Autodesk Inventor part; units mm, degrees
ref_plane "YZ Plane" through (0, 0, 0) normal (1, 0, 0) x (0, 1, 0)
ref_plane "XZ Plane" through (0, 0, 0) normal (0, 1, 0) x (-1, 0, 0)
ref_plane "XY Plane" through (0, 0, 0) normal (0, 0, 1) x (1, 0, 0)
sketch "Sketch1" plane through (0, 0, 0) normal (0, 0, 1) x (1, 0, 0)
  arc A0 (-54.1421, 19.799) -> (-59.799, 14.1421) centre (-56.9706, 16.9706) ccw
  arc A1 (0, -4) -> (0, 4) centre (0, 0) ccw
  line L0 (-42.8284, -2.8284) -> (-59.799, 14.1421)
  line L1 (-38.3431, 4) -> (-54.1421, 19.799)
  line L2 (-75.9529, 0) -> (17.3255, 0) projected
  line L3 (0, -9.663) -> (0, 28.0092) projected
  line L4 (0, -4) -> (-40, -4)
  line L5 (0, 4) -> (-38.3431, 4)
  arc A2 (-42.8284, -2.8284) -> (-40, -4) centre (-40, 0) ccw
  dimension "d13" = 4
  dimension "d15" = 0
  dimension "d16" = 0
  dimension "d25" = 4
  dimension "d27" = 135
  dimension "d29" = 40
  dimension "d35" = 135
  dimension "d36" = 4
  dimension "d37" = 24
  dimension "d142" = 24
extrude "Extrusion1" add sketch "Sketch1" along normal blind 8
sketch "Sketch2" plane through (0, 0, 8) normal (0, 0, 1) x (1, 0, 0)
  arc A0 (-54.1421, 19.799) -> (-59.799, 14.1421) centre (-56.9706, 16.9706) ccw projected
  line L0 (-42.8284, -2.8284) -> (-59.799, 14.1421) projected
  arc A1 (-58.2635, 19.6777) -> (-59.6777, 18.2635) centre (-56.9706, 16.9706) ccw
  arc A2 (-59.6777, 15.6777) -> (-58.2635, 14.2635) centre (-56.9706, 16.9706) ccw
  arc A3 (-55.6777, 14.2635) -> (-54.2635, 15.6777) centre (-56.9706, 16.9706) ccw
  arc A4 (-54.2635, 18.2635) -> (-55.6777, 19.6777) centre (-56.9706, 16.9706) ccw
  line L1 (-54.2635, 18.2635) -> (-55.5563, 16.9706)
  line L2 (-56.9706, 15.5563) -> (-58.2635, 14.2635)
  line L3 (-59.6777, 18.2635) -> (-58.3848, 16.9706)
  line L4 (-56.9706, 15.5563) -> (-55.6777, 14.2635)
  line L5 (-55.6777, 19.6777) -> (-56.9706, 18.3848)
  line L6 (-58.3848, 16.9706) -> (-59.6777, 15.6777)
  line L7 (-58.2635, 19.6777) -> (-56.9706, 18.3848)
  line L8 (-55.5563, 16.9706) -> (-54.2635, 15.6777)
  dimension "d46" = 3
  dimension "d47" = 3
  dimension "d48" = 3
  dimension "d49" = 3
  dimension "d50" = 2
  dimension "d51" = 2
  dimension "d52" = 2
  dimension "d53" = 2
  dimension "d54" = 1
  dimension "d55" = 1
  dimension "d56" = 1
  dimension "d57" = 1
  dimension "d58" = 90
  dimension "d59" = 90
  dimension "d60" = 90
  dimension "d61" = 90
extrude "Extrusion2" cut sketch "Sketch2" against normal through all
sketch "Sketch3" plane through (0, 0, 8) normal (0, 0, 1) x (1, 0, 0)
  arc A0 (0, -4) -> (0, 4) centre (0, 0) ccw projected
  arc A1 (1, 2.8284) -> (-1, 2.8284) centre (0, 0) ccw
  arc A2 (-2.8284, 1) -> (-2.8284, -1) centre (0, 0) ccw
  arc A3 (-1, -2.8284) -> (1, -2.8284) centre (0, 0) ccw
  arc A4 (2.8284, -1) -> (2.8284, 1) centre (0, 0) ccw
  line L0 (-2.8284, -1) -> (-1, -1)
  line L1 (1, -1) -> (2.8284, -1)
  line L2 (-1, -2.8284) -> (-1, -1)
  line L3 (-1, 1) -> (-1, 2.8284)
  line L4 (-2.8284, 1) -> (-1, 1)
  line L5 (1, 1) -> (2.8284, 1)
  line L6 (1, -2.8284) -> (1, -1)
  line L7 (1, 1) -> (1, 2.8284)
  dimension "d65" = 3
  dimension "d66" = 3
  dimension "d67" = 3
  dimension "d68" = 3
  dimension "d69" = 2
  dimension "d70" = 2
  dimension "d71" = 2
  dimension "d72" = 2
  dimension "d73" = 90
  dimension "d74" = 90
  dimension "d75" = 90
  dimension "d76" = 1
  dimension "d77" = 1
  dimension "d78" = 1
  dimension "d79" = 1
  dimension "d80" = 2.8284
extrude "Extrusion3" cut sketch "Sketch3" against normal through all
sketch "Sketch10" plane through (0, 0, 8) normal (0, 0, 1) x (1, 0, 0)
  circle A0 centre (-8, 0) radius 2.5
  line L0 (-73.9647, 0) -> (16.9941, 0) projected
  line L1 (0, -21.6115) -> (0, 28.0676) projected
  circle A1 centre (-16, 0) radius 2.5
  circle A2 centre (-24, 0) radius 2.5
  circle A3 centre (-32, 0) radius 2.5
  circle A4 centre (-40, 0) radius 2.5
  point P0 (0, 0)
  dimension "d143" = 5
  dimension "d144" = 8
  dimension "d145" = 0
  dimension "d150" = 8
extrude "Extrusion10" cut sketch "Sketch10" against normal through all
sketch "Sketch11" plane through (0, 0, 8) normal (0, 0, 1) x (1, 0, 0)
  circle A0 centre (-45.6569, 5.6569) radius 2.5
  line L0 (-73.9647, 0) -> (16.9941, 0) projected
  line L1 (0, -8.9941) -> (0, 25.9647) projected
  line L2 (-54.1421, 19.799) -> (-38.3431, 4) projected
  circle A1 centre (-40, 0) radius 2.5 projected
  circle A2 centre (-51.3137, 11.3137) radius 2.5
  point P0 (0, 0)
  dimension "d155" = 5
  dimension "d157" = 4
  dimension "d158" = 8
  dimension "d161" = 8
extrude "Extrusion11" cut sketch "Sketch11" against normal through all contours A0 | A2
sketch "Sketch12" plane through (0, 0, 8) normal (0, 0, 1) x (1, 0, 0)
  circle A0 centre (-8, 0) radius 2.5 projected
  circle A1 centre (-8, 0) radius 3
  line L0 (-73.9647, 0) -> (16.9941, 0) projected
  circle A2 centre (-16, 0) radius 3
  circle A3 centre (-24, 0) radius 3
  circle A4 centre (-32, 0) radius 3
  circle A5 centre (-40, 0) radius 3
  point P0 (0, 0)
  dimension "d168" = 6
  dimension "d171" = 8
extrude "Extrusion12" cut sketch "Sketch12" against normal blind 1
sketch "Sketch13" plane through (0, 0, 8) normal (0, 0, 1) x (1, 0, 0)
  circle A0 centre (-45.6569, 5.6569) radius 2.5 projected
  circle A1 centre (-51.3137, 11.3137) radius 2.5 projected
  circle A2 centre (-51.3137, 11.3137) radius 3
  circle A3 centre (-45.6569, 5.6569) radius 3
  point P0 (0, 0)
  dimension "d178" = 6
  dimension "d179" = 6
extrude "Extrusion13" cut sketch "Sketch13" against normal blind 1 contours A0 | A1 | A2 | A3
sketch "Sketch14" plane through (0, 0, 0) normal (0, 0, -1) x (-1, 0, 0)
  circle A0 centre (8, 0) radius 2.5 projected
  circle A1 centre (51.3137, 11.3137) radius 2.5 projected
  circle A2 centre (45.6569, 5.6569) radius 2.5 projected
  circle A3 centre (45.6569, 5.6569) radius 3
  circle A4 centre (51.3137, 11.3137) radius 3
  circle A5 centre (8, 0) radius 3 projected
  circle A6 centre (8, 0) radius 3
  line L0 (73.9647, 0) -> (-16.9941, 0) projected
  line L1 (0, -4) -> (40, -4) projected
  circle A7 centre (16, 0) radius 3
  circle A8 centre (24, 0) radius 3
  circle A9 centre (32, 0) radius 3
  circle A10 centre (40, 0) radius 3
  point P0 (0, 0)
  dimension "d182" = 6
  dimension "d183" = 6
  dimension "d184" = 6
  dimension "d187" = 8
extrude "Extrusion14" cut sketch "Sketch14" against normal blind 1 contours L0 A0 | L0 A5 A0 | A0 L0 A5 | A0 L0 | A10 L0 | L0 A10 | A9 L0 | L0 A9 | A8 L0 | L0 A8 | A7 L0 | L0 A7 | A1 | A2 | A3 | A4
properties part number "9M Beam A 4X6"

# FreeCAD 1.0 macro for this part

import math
import FreeCAD as App
import Part
import Sketcher

V = App.Vector
Q = App.Units.Quantity

doc = App.newDocument("Part")
body = doc.addObject("PartDesign::Body", "Body")

# Sketch on XY plane
sketch1 = body.newObject("Sketcher::SketchObject", "Sketch")
sketch1.AttachmentSupport = (doc.getObject("XY_Plane"), [""])
sketch1.MapMode = "FlatFace"
sketch1.addGeometry([
    Part.LineSegment(V(-38.3431, 4, 0), V(-54.1421, 19.799, 0)),  # 0
    Part.ArcOfCircle(Part.Circle(V(-56.9706, 16.9706, 0), V(0, 0, 1), 4.000032), math.radians(44.998987), math.radians(225.001013)),  # 1
    Part.LineSegment(V(-59.799, 14.1421, 0), V(-42.8284, -2.8284, 0)),  # 2
    Part.ArcOfCircle(Part.Circle(V(-40, 0, 0), V(0, 0, 1), 3.999962), math.radians(-135), math.radians(-90)),  # 3
    Part.LineSegment(V(-40, -4, 0), V(0, -4, 0)),  # 4
    Part.ArcOfCircle(Part.Circle(V(0, 0, 0), V(0, 0, 1), 4), math.radians(-90), math.radians(90)),  # 5
    Part.LineSegment(V(0, 4, 0), V(-38.3431, 4, 0)),  # 6
], False)
sketch1.addConstraint([
    Sketcher.Constraint("Tangent", 0, 2, 1, 1),
    Sketcher.Constraint("Tangent", 1, 2, 2, 1),
    Sketcher.Constraint("Tangent", 2, 2, 3, 1),
    Sketcher.Constraint("Tangent", 3, 2, 4, 1),
    Sketcher.Constraint("Tangent", 4, 2, 5, 1),
    Sketcher.Constraint("Tangent", 5, 2, 6, 1),
    Sketcher.Constraint("Coincident", 6, 2, 0, 1),
    Sketcher.Constraint("Horizontal", 4),
    Sketcher.Constraint("Horizontal", 6),
    Sketcher.Constraint("Coincident", 5, 3, -1, 1),
    Sketcher.Constraint("Equal", 1, 3),
    Sketcher.Constraint("Equal", 3, 5),
    Sketcher.Constraint("Parallel", 0, 2),
    Sketcher.Constraint("Radius", 1, 4.0),
    Sketcher.Constraint("DistanceX", 4, 1, 4, 2, 40.0),
    Sketcher.Constraint("Angle", 0, Q("135 deg")),
    Sketcher.Constraint("Distance", 2, 24.0),
])
pad1 = body.newObject("PartDesign::Pad", "Pad")
pad1.Profile = sketch1
pad1.Length = 8

# Sketch on XY plane
sketch2 = body.newObject("Sketcher::SketchObject", "Sketch001")
sketch2.AttachmentSupport = (doc.getObject("XY_Plane"), [""])
sketch2.MapMode = "FlatFace"
sketch2.AttachmentOffset = App.Placement(V(0, 0, 8), App.Rotation())
sketch2.addGeometry([
    Part.LineSegment(V(-56.9706, 18.3848, 0), V(-58.2635, 19.6777, 0)),  # 0
    Part.ArcOfCircle(Part.Circle(V(-56.9706, 16.9706, 0), V(0, 0, 1), 2.999997), math.radians(115.528952), math.radians(154.471048)),  # 1
    Part.LineSegment(V(-59.6777, 18.2635, 0), V(-58.3848, 16.9706, 0)),  # 2
    Part.LineSegment(V(-58.3848, 16.9706, 0), V(-59.6777, 15.6777, 0)),  # 3
    Part.ArcOfCircle(Part.Circle(V(-56.9706, 16.9706, 0), V(0, 0, 1), 2.999997), math.radians(-154.471048), math.radians(-115.528952)),  # 4
    Part.LineSegment(V(-58.2635, 14.2635, 0), V(-56.9706, 15.5563, 0)),  # 5
    Part.LineSegment(V(-56.9706, 15.5563, 0), V(-55.6777, 14.2635, 0)),  # 6
    Part.ArcOfCircle(Part.Circle(V(-56.9706, 16.9706, 0), V(0, 0, 1), 2.999997), math.radians(-64.471048), math.radians(-25.528952)),  # 7
    Part.LineSegment(V(-54.2635, 15.6777, 0), V(-55.5563, 16.9706, 0)),  # 8
    Part.LineSegment(V(-55.5563, 16.9706, 0), V(-54.2635, 18.2635, 0)),  # 9
    Part.ArcOfCircle(Part.Circle(V(-56.9706, 16.9706, 0), V(0, 0, 1), 2.999997), math.radians(25.528952), math.radians(64.471048)),  # 10
    Part.LineSegment(V(-55.6777, 19.6777, 0), V(-56.9706, 18.3848, 0)),  # 11
], False)
sketch2.addConstraint([
    Sketcher.Constraint("Coincident", 0, 2, 1, 1),
    Sketcher.Constraint("Coincident", 1, 2, 2, 1),
    Sketcher.Constraint("Coincident", 2, 2, 3, 1),
    Sketcher.Constraint("Coincident", 3, 2, 4, 1),
    Sketcher.Constraint("Coincident", 4, 2, 5, 1),
    Sketcher.Constraint("Coincident", 5, 2, 6, 1),
    Sketcher.Constraint("Coincident", 6, 2, 7, 1),
    Sketcher.Constraint("Coincident", 7, 2, 8, 1),
    Sketcher.Constraint("Coincident", 8, 2, 9, 1),
    Sketcher.Constraint("Coincident", 9, 2, 10, 1),
    Sketcher.Constraint("Coincident", 10, 2, 11, 1),
    Sketcher.Constraint("Coincident", 11, 2, 0, 1),
    Sketcher.Constraint("Coincident", 4, 3, 1, 3),
    Sketcher.Constraint("Coincident", 7, 3, 1, 3),
    Sketcher.Constraint("Coincident", 10, 3, 1, 3),
    Sketcher.Constraint("Equal", 1, 4),
    Sketcher.Constraint("Equal", 4, 7),
    Sketcher.Constraint("Equal", 7, 10),
    Sketcher.Constraint("Parallel", 0, 2),
    Sketcher.Constraint("Perpendicular", 2, 3),
    Sketcher.Constraint("Parallel", 3, 5),
    Sketcher.Constraint("Perpendicular", 5, 6),
    Sketcher.Constraint("Parallel", 6, 8),
    Sketcher.Constraint("Perpendicular", 8, 9),
    Sketcher.Constraint("Parallel", 9, 11),
    Sketcher.Constraint("Horizontal", 10, 3, 2, 2),
    Sketcher.Constraint("Horizontal", 4, 2, 6, 2),
    Sketcher.Constraint("Horizontal", 3, 2, 7, 2),
    Sketcher.Constraint("Horizontal", 2, 2, 8, 2),
    Sketcher.Constraint("Horizontal", 1, 2, 9, 2),
    Sketcher.Constraint("Horizontal", 0, 2, 10, 2),
    Sketcher.Constraint("Vertical", 0, 2, 4, 2),
    Sketcher.Constraint("Equal", 0, 2),
    Sketcher.Constraint("Radius", 1, 3.0),
    Sketcher.Constraint("DistanceX", 0, 2, 1, 3, 1.293),
    Sketcher.Constraint("DistanceX", 1, 3, -1, 1, 56.9706),
    Sketcher.Constraint("DistanceY", -1, 1, 1, 3, 16.9706),
])
pocket1 = body.newObject("PartDesign::Pocket", "Pocket")
pocket1.Profile = sketch2
pocket1.Type = "ThroughAll"

# Sketch on XY plane
sketch3 = body.newObject("Sketcher::SketchObject", "Sketch002")
sketch3.AttachmentSupport = (doc.getObject("XY_Plane"), [""])
sketch3.MapMode = "FlatFace"
sketch3.AttachmentOffset = App.Placement(V(0, 0, 8), App.Rotation())
sketch3.addGeometry([
    Part.LineSegment(V(1, 1, 0), V(1, 2.8284, 0)),  # 0
    Part.ArcOfCircle(Part.Circle(V(0, 0, 0), V(0, 0, 1), 2.999974), math.radians(70.528607), math.radians(109.471393)),  # 1
    Part.LineSegment(V(-1, 2.8284, 0), V(-1, 1, 0)),  # 2
    Part.LineSegment(V(-1, 1, 0), V(-2.8284, 1, 0)),  # 3
    Part.ArcOfCircle(Part.Circle(V(0, 0, 0), V(0, 0, 1), 2.999974), math.radians(160.528607), math.radians(199.471393)),  # 4
    Part.LineSegment(V(-2.8284, -1, 0), V(-1, -1, 0)),  # 5
    Part.LineSegment(V(-1, -1, 0), V(-1, -2.8284, 0)),  # 6
    Part.ArcOfCircle(Part.Circle(V(0, 0, 0), V(0, 0, 1), 2.999974), math.radians(-109.471393), math.radians(-70.528607)),  # 7
    Part.LineSegment(V(1, -2.8284, 0), V(1, -1, 0)),  # 8
    Part.LineSegment(V(1, -1, 0), V(2.8284, -1, 0)),  # 9
    Part.ArcOfCircle(Part.Circle(V(0, 0, 0), V(0, 0, 1), 2.999974), math.radians(-19.471393), math.radians(19.471393)),  # 10
    Part.LineSegment(V(2.8284, 1, 0), V(1, 1, 0)),  # 11
], False)
sketch3.addConstraint([
    Sketcher.Constraint("Coincident", 0, 2, 1, 1),
    Sketcher.Constraint("Coincident", 1, 2, 2, 1),
    Sketcher.Constraint("Coincident", 2, 2, 3, 1),
    Sketcher.Constraint("Coincident", 3, 2, 4, 1),
    Sketcher.Constraint("Coincident", 4, 2, 5, 1),
    Sketcher.Constraint("Coincident", 5, 2, 6, 1),
    Sketcher.Constraint("Coincident", 6, 2, 7, 1),
    Sketcher.Constraint("Coincident", 7, 2, 8, 1),
    Sketcher.Constraint("Coincident", 8, 2, 9, 1),
    Sketcher.Constraint("Coincident", 9, 2, 10, 1),
    Sketcher.Constraint("Coincident", 10, 2, 11, 1),
    Sketcher.Constraint("Coincident", 11, 2, 0, 1),
    Sketcher.Constraint("Vertical", 0),
    Sketcher.Constraint("Vertical", 2),
    Sketcher.Constraint("Horizontal", 3),
    Sketcher.Constraint("Horizontal", 5),
    Sketcher.Constraint("Vertical", 6),
    Sketcher.Constraint("Vertical", 8),
    Sketcher.Constraint("Horizontal", 9),
    Sketcher.Constraint("Horizontal", 11),
    Sketcher.Constraint("Coincident", 1, 3, -1, 1),
    Sketcher.Constraint("Coincident", 4, 3, -1, 1),
    Sketcher.Constraint("Coincident", 7, 3, -1, 1),
    Sketcher.Constraint("Coincident", 10, 3, -1, 1),
    Sketcher.Constraint("Equal", 1, 4),
    Sketcher.Constraint("Equal", 4, 7),
    Sketcher.Constraint("Equal", 7, 10),
    Sketcher.Constraint("Symmetric", 2, 2, 8, 2, -1, 1),
    Sketcher.Constraint("Symmetric", 5, 2, 11, 2, -1, 1),
    Sketcher.Constraint("Symmetric", 5, 2, 8, 2, -2),
    Sketcher.Constraint("Equal", 11, 0),
    Sketcher.Constraint("Radius", 1, 3.0),
    Sketcher.Constraint("DistanceX", -1, 1, 0, 2, 1.0),
])
pocket2 = body.newObject("PartDesign::Pocket", "Pocket001")
pocket2.Profile = sketch3
pocket2.Type = "ThroughAll"

# Sketch on XY plane
sketch4 = body.newObject("Sketcher::SketchObject", "Sketch003")
sketch4.AttachmentSupport = (doc.getObject("XY_Plane"), [""])
sketch4.MapMode = "FlatFace"
sketch4.AttachmentOffset = App.Placement(V(0, 0, 8), App.Rotation())
sketch4.addGeometry([
    Part.Circle(V(-8, 0, 0), V(0, 0, 1), 2.5),  # 0
    Part.Circle(V(-40, 0, 0), V(0, 0, 1), 2.5),  # 1
    Part.Circle(V(-32, 0, 0), V(0, 0, 1), 2.5),  # 2
    Part.Circle(V(-24, 0, 0), V(0, 0, 1), 2.5),  # 3
    Part.Circle(V(-16, 0, 0), V(0, 0, 1), 2.5),  # 4
], False)
sketch4.addConstraint([
    Sketcher.Constraint("Equal", 0, 1),
    Sketcher.Constraint("Equal", 1, 2),
    Sketcher.Constraint("Equal", 2, 3),
    Sketcher.Constraint("Equal", 3, 4),
    Sketcher.Constraint("PointOnObject", 0, 3, -1),
    Sketcher.Constraint("PointOnObject", 1, 3, -1),
    Sketcher.Constraint("PointOnObject", 2, 3, -1),
    Sketcher.Constraint("PointOnObject", 3, 3, -1),
    Sketcher.Constraint("PointOnObject", 4, 3, -1),
    Sketcher.Constraint("Diameter", 0, 5.0),
    Sketcher.Constraint("DistanceX", 0, 3, -1, 1, 8.0),
    Sketcher.Constraint("DistanceX", 1, 3, 2, 3, 8.0),
    Sketcher.Constraint("DistanceX", 2, 3, 3, 3, 8.0),
    Sketcher.Constraint("DistanceX", 4, 3, 0, 3, 8.0),
    Sketcher.Constraint("DistanceX", 3, 3, 4, 3, 8.0),
])
pocket3 = body.newObject("PartDesign::Pocket", "Pocket002")
pocket3.Profile = sketch4
pocket3.Type = "ThroughAll"

# Sketch on XY plane
sketch5 = body.newObject("Sketcher::SketchObject", "Sketch004")
sketch5.AttachmentSupport = (doc.getObject("XY_Plane"), [""])
sketch5.MapMode = "FlatFace"
sketch5.AttachmentOffset = App.Placement(V(0, 0, 8), App.Rotation())
sketch5.addGeometry([
    Part.Circle(V(-45.6569, 5.6569, 0), V(0, 0, 1), 2.5),
    Part.Circle(V(-51.3137, 11.3137, 0), V(0, 0, 1), 2.5),
], False)
sketch5.addConstraint([
    Sketcher.Constraint("Equal", 0, 1),
    Sketcher.Constraint("Diameter", 0, 5.0),
    Sketcher.Constraint("DistanceX", 0, 3, -1, 1, 45.657),
    Sketcher.Constraint("DistanceY", -1, 1, 0, 3, 5.657),
    Sketcher.Constraint("DistanceX", 1, 3, -1, 1, 51.3137),
    Sketcher.Constraint("DistanceY", -1, 1, 1, 3, 11.3137),
])
pocket4 = body.newObject("PartDesign::Pocket", "Pocket003")
pocket4.Profile = sketch5
pocket4.Type = "ThroughAll"

# Sketch on XY plane
sketch6 = body.newObject("Sketcher::SketchObject", "Sketch005")
sketch6.AttachmentSupport = (doc.getObject("XY_Plane"), [""])
sketch6.MapMode = "FlatFace"
sketch6.AttachmentOffset = App.Placement(V(0, 0, 8), App.Rotation())
sketch6.addGeometry([
    Part.Circle(V(-8, 0, 0), V(0, 0, 1), 3),  # 0
    Part.Circle(V(-40, 0, 0), V(0, 0, 1), 3),  # 1
    Part.Circle(V(-32, 0, 0), V(0, 0, 1), 3),  # 2
    Part.Circle(V(-24, 0, 0), V(0, 0, 1), 3),  # 3
    Part.Circle(V(-16, 0, 0), V(0, 0, 1), 3),  # 4
], False)
sketch6.addConstraint([
    Sketcher.Constraint("Equal", 0, 1),
    Sketcher.Constraint("Equal", 1, 2),
    Sketcher.Constraint("Equal", 2, 3),
    Sketcher.Constraint("Equal", 3, 4),
    Sketcher.Constraint("PointOnObject", 0, 3, -1),
    Sketcher.Constraint("PointOnObject", 1, 3, -1),
    Sketcher.Constraint("PointOnObject", 2, 3, -1),
    Sketcher.Constraint("PointOnObject", 3, 3, -1),
    Sketcher.Constraint("PointOnObject", 4, 3, -1),
    Sketcher.Constraint("Diameter", 0, 6.0),
    Sketcher.Constraint("DistanceX", 0, 3, -1, 1, 8.0),
    Sketcher.Constraint("DistanceX", 1, 3, 2, 3, 8.0),
    Sketcher.Constraint("DistanceX", 2, 3, 3, 3, 8.0),
    Sketcher.Constraint("DistanceX", 4, 3, 0, 3, 8.0),
    Sketcher.Constraint("DistanceX", 3, 3, 4, 3, 8.0),
])
pocket5 = body.newObject("PartDesign::Pocket", "Pocket004")
pocket5.Profile = sketch6
pocket5.Length = 1

# Sketch on XY plane
sketch7 = body.newObject("Sketcher::SketchObject", "Sketch006")
sketch7.AttachmentSupport = (doc.getObject("XY_Plane"), [""])
sketch7.MapMode = "FlatFace"
sketch7.AttachmentOffset = App.Placement(V(0, 0, 8), App.Rotation())
sketch7.addGeometry([
    Part.Circle(V(-45.6569, 5.6569, 0), V(0, 0, 1), 3),
    Part.Circle(V(-51.3137, 11.3137, 0), V(0, 0, 1), 3),
], False)
sketch7.addConstraint([
    Sketcher.Constraint("Equal", 0, 1),
    Sketcher.Constraint("Diameter", 0, 6.0),
    Sketcher.Constraint("DistanceX", 0, 3, -1, 1, 45.657),
    Sketcher.Constraint("DistanceY", -1, 1, 0, 3, 5.657),
    Sketcher.Constraint("DistanceX", 1, 3, -1, 1, 51.3137),
    Sketcher.Constraint("DistanceY", -1, 1, 1, 3, 11.3137),
])
pocket6 = body.newObject("PartDesign::Pocket", "Pocket005")
pocket6.Profile = sketch7
pocket6.Length = 1

# Sketch on XY plane
sketch8 = body.newObject("Sketcher::SketchObject", "Sketch007")
sketch8.AttachmentSupport = (doc.getObject("XY_Plane"), [""])
sketch8.MapMode = "FlatFace"
sketch8.addGeometry([
    Part.Circle(V(-8, 0, 0), V(0, 0, 1), 3),  # 0
    Part.Circle(V(-40, 0, 0), V(0, 0, 1), 3),  # 1
    Part.Circle(V(-32, 0, 0), V(0, 0, 1), 3),  # 2
    Part.Circle(V(-24, 0, 0), V(0, 0, 1), 3),  # 3
    Part.Circle(V(-16, 0, 0), V(0, 0, 1), 3),  # 4
    Part.Circle(V(-51.3137, 11.3137, 0), V(0, 0, 1), 3),  # 5
    Part.Circle(V(-45.6569, 5.6569, 0), V(0, 0, 1), 3),  # 6
], False)
sketch8.addConstraint([
    Sketcher.Constraint("Equal", 0, 1),
    Sketcher.Constraint("Equal", 1, 2),
    Sketcher.Constraint("Equal", 2, 3),
    Sketcher.Constraint("Equal", 3, 4),
    Sketcher.Constraint("Equal", 4, 5),
    Sketcher.Constraint("Equal", 5, 6),
    Sketcher.Constraint("PointOnObject", 0, 3, -1),
    Sketcher.Constraint("PointOnObject", 1, 3, -1),
    Sketcher.Constraint("PointOnObject", 2, 3, -1),
    Sketcher.Constraint("PointOnObject", 3, 3, -1),
    Sketcher.Constraint("PointOnObject", 4, 3, -1),
    Sketcher.Constraint("Diameter", 0, 6.0),
    Sketcher.Constraint("DistanceX", 0, 3, -1, 1, 8.0),
    Sketcher.Constraint("DistanceX", 1, 3, 2, 3, 8.0),
    Sketcher.Constraint("DistanceX", 2, 3, 3, 3, 8.0),
    Sketcher.Constraint("DistanceX", 4, 3, 0, 3, 8.0),
    Sketcher.Constraint("DistanceX", 3, 3, 4, 3, 8.0),
    Sketcher.Constraint("DistanceX", 6, 3, -1, 1, 45.657),
    Sketcher.Constraint("DistanceY", -1, 1, 6, 3, 5.657),
    Sketcher.Constraint("DistanceX", 5, 3, -1, 1, 51.3137),
    Sketcher.Constraint("DistanceY", -1, 1, 5, 3, 11.3137),
])
pocket7 = body.newObject("PartDesign::Pocket", "Pocket006")
pocket7.Profile = sketch8
pocket7.Length = 1
pocket7.Reversed = True

doc.recompute()
